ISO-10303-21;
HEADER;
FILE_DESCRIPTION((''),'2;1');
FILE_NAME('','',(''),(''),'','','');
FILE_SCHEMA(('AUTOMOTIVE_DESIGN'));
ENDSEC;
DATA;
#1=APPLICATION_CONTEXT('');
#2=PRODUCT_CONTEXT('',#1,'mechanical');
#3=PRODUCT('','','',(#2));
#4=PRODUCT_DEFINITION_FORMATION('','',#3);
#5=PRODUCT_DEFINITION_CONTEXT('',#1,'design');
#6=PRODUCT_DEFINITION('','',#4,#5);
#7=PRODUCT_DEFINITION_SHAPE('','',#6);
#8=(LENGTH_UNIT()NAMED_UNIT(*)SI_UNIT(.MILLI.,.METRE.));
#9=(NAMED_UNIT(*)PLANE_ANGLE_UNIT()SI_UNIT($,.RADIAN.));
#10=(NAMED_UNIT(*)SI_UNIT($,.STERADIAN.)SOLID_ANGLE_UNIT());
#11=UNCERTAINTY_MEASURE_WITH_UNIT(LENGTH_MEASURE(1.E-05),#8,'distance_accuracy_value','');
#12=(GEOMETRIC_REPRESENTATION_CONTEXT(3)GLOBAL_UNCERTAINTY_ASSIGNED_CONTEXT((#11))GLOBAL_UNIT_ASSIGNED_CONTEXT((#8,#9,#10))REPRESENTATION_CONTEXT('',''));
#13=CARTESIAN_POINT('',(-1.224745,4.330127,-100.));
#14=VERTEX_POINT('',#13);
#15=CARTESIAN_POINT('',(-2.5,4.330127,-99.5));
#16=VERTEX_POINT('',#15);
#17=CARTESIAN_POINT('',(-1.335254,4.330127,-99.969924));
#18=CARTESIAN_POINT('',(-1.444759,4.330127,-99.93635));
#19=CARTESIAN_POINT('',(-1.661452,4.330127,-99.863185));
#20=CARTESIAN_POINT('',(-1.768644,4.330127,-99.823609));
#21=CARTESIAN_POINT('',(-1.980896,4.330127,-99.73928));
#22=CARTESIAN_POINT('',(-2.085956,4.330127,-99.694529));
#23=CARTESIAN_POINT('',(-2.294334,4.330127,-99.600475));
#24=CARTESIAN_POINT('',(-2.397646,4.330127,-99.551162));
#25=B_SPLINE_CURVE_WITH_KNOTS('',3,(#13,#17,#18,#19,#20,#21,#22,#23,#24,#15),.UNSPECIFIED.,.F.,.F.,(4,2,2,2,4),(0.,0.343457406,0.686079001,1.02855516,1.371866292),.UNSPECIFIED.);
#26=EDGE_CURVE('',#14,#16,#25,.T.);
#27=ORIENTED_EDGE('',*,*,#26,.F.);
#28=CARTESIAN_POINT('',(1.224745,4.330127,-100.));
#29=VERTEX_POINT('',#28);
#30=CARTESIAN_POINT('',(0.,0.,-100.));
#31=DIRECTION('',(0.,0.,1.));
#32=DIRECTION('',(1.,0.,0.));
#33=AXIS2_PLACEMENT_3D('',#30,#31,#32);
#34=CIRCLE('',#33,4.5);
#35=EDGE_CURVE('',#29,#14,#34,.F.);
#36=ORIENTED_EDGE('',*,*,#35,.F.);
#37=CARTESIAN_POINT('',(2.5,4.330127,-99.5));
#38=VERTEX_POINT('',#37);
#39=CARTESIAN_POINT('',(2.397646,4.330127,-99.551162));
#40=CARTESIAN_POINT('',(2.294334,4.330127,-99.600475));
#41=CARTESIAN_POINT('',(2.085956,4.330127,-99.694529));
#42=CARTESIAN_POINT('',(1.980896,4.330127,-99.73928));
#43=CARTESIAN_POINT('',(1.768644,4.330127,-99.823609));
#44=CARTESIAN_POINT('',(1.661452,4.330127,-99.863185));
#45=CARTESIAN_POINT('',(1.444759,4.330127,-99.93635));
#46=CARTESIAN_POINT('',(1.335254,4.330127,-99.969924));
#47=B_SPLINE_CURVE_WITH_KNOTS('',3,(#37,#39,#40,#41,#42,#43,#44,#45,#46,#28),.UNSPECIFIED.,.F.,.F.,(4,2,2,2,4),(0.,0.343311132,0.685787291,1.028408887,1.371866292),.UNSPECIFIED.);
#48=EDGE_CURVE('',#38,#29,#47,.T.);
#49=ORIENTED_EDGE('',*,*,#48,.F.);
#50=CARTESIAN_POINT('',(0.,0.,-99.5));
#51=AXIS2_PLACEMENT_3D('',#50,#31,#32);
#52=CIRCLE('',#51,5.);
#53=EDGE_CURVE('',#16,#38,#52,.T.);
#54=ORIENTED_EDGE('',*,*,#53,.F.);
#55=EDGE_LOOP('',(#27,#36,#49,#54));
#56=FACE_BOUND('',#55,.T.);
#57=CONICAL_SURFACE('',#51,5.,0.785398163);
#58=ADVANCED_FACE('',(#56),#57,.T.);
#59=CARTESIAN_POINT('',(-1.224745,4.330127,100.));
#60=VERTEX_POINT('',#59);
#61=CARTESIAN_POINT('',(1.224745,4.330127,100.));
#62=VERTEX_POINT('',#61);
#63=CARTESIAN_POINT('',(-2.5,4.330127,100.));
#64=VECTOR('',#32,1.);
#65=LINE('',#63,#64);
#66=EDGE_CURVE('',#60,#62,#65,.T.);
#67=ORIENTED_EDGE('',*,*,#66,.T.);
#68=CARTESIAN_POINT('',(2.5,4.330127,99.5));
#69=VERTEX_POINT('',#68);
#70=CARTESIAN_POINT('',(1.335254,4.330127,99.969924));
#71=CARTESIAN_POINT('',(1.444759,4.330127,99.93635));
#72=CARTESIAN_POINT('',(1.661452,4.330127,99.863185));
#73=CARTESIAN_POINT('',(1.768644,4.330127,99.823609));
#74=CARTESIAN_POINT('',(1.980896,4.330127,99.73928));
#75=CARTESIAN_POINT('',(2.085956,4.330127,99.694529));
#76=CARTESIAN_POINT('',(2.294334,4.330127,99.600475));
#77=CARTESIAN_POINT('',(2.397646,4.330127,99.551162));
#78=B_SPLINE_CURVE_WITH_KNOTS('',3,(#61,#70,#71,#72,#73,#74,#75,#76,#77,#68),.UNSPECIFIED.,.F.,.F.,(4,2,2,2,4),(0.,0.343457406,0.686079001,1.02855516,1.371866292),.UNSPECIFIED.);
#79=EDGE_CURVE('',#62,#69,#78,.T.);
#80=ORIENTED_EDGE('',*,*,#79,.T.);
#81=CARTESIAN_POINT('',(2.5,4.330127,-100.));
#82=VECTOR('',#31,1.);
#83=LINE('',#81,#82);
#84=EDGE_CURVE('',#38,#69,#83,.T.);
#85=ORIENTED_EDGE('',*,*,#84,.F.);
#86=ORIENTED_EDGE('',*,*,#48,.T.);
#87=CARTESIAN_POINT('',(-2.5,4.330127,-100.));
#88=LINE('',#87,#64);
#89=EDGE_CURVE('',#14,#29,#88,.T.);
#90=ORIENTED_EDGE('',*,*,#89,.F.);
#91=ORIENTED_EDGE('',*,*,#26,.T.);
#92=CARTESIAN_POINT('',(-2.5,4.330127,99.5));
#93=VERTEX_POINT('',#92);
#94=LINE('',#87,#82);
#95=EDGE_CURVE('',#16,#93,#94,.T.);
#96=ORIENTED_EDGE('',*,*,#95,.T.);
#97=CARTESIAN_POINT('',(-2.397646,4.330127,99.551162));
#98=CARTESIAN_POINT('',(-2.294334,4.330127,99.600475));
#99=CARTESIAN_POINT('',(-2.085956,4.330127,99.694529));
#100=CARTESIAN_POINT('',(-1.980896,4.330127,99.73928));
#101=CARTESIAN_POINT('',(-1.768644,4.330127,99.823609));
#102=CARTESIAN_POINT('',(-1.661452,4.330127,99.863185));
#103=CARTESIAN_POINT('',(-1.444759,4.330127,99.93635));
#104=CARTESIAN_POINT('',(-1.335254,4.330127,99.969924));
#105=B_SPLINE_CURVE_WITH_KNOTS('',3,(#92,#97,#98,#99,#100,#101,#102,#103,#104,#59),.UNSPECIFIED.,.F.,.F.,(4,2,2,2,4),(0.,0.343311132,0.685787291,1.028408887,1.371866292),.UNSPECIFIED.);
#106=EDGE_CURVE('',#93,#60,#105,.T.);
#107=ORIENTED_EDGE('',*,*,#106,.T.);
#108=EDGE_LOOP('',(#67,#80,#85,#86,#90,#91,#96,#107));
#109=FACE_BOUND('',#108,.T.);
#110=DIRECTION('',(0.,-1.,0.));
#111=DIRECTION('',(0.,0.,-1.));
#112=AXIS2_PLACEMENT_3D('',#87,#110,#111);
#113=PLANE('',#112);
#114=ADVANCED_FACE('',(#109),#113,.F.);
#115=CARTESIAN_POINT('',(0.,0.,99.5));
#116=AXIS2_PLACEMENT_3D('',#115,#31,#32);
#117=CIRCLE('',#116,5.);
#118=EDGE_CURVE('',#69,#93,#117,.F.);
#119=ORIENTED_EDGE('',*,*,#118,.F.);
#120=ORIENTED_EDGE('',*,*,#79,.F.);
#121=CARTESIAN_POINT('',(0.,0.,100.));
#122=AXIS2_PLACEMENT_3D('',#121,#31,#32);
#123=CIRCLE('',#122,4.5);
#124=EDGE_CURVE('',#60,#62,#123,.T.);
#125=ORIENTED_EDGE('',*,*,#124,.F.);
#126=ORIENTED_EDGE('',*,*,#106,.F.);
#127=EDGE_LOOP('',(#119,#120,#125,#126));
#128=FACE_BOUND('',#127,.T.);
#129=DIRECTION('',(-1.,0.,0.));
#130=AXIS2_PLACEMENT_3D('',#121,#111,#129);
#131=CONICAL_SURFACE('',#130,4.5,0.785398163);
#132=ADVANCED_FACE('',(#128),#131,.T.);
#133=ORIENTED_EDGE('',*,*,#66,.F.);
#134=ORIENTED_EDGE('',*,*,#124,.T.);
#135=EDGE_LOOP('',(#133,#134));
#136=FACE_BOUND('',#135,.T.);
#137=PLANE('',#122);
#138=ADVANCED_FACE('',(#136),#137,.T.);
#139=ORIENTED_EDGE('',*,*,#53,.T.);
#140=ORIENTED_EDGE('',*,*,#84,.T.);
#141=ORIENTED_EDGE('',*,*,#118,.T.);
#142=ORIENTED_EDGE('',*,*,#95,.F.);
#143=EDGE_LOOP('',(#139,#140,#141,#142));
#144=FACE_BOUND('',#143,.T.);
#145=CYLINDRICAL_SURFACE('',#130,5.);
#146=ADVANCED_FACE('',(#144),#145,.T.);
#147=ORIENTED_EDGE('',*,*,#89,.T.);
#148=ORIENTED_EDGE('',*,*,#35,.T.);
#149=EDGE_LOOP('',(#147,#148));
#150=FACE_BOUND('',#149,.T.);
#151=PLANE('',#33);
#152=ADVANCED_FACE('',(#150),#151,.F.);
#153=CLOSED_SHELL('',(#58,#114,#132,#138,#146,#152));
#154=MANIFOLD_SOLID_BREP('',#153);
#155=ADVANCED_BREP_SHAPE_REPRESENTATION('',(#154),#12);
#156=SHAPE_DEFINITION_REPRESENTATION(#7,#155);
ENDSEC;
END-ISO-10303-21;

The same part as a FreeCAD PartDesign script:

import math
import FreeCAD as App
import Part
import Sketcher
from FreeCAD import Vector
Q = App.Units.Quantity


def edges_at(feature, points):
    """Names of the edges that pass closest to the given points."""
    edges = feature.Shape.Edges
    near = lambda p: min(range(len(edges)), key=lambda i: edges[i].distToShape(Part.Vertex(*p))[0])
    return sorted({f"Edge{near(p) + 1}" for p in points})

doc = App.newDocument("Part")
body = doc.addObject("PartDesign::Body", "Body")

sketch1 = body.newObject("Sketcher::SketchObject", "Sketch")
sketch1.AttachmentSupport = (doc.getObject("XY_Plane"), [""])
sketch1.MapMode = "FlatFace"
sketch1.addGeometry(Part.Circle(Vector(0, 0, 0), Vector(0, 0, 1), 5), False)
sketch1.addConstraint(Sketcher.Constraint("Coincident", 0, 3, -1, 1))
sketch1.addConstraint(Sketcher.Constraint("Diameter", 0, Q("10 mm")))
pad1 = body.newObject("PartDesign::Pad", "Pad")
pad1.Profile = sketch1
pad1.Type = "TwoLengths"
pad1.Length = 100
pad1.Length2 = 100

sketch2 = body.newObject("Sketcher::SketchObject", "Sketch001")
sketch2.AttachmentSupport = (doc.getObject("XY_Plane"), [""])
sketch2.MapMode = "FlatFace"
sketch2.addGeometry(Part.LineSegment(Vector(-2.5, 4.330127, 0), Vector(2.5, 4.330127, 0)), False)
sketch2.addGeometry(Part.ArcOfCircle(Part.Circle(Vector(0, 0, 0), Vector(0, 0, 1), 5), math.radians(60), math.radians(120)), False)
sketch2.addConstraint(Sketcher.Constraint("Coincident", 0, 1, 1, 2))
sketch2.addConstraint(Sketcher.Constraint("Coincident", 1, 1, 0, 2))
sketch2.addConstraint(Sketcher.Constraint("Horizontal", 0))
sketch2.addConstraint(Sketcher.Constraint("Coincident", 1, 3, -1, 1))
sketch2.addConstraint(Sketcher.Constraint("Radius", 1, Q("5 mm")))
sketch2.addConstraint(Sketcher.Constraint("DistanceX", 0, 1, 0, 2, Q("5 mm")))
pocket1 = body.newObject("PartDesign::Pocket", "Pocket")
pocket1.Profile = sketch2
pocket1.Type = "ThroughAll"
pocket1.Midplane = True
doc.recompute()

chamfer = body.newObject("PartDesign::Chamfer", "Chamfer")
chamfer.Base = (pocket1, edges_at(pocket1, [(0, -5, -100), (0, -5, 100)]))
chamfer.Size = 0.5

doc.recompute()
